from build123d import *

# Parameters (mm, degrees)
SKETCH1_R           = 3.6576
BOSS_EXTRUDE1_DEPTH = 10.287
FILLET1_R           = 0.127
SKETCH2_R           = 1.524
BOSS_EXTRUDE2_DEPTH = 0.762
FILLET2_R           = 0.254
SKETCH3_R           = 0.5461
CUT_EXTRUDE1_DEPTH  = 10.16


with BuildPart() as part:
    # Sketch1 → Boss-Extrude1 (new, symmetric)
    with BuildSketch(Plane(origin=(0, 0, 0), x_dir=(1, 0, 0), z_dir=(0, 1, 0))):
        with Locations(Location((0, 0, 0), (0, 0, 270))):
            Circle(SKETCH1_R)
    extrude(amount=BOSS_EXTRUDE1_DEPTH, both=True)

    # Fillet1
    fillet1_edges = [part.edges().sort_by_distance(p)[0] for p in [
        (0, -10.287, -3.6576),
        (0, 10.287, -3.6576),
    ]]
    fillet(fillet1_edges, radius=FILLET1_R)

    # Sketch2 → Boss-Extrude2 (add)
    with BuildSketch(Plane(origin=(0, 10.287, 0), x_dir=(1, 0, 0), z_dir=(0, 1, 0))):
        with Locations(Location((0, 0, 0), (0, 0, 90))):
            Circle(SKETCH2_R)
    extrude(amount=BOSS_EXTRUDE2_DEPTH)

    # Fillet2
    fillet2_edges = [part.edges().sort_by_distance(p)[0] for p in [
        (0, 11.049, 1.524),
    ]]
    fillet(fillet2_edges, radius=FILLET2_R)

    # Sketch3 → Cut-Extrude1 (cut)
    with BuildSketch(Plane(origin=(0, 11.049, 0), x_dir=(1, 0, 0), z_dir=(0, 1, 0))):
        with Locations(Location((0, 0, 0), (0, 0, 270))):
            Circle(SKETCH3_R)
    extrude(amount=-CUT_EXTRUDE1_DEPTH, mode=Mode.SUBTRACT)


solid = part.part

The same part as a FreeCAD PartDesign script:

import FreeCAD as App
import Part
import Sketcher

V = App.Vector
Q = App.Units.Quantity


def edges_at(feature, points):
    """Names of the edges that pass closest to the given points."""
    edges = feature.Shape.Edges
    near = lambda p: min(range(len(edges)), key=lambda i: edges[i].distToShape(Part.Vertex(*p))[0])
    return sorted({f"Edge{near(p) + 1}" for p in points})

doc = App.newDocument("Part")
params = doc.addObject("Spreadsheet::Sheet", "Params")
for row, (alias, value) in enumerate([
    ("sketch1_diameter", "0.288 in"),
    ("pad1_length", "0.81 in"),
    ("fillet_radius", "0.005 in"),
    ("sketch2_diameter", "0.12 in"),
    ("pad2_length", "0.03 in"),
    ("fillet2_radius", "0.01 in"),
    ("sketch3_diameter", "0.043 in"),
    ("pocket1_length", "0.4 in"),
], start=1):
    params.set(f"A{row}", alias)
    params.set(f"B{row}", "=" + value)
    params.setAlias(f"B{row}", alias)

body = doc.addObject("PartDesign::Body", "Body")

# Sketch on XZ plane
sketch1 = body.newObject("Sketcher::SketchObject", "Sketch")
sketch1.AttachmentSupport = (doc.getObject("XZ_Plane"), [""])
sketch1.MapMode = "FlatFace"
sketch1.addGeometry(Part.Circle(V(0, 0, 0), V(0, 0, 1), 3.7), False)
sketch1.addConstraint(Sketcher.Constraint("Coincident", 0, 3, -1, 1))
sketch1.addConstraint(Sketcher.Constraint("Diameter", 0, Q("0.288 in")))
sketch1.setExpression("Constraints[1]", "Params.sketch1_diameter")
pad1 = body.newObject("PartDesign::Pad", "Pad")
pad1.Profile = sketch1
pad1.setExpression("Length", "Params.pad1_length")
pad1.Midplane = True
doc.recompute()

fillet = body.newObject("PartDesign::Fillet", "Fillet")
fillet.Base = (pad1, edges_at(pad1, [(0, -10.287, -3.658), (0, 10.287, -3.658)]))
fillet.setExpression("Radius", "Params.fillet_radius")

# Sketch on XZ plane
sketch2 = body.newObject("Sketcher::SketchObject", "Sketch001")
sketch2.AttachmentSupport = (doc.getObject("XZ_Plane"), [""])
sketch2.MapMode = "FlatFace"
sketch2.AttachmentOffset = App.Placement(V(0, 0, -0.405 * 25.4), App.Rotation())
sketch2.addGeometry(Part.Circle(V(0, 0, 0), V(0, 0, 1), 1.5), False)
sketch2.addConstraint(Sketcher.Constraint("Coincident", 0, 3, -1, 1))
sketch2.addConstraint(Sketcher.Constraint("Diameter", 0, Q("0.12 in")))
sketch2.setExpression("Constraints[1]", "Params.sketch2_diameter")
pad2 = body.newObject("PartDesign::Pad", "Pad001")
pad2.Profile = sketch2
pad2.setExpression("Length", "Params.pad2_length")
pad2.Reversed = True
doc.recompute()

fillet2 = body.newObject("PartDesign::Fillet", "Fillet001")
fillet2.Base = (pad2, edges_at(pad2, [(0, 11.049, 1.524)]))
fillet2.setExpression("Radius", "Params.fillet2_radius")

# Sketch on XZ plane
sketch3 = body.newObject("Sketcher::SketchObject", "Sketch002")
sketch3.AttachmentSupport = (doc.getObject("XZ_Plane"), [""])
sketch3.MapMode = "FlatFace"
sketch3.AttachmentOffset = App.Placement(V(0, 0, -0.435 * 25.4), App.Rotation())
sketch3.addGeometry(Part.Circle(V(0, 0, 0), V(0, 0, 1), 0.5), False)
sketch3.addConstraint(Sketcher.Constraint("Coincident", 0, 3, -1, 1))
sketch3.addConstraint(Sketcher.Constraint("Diameter", 0, Q("0.043 in")))
sketch3.setExpression("Constraints[1]", "Params.sketch3_diameter")
pocket1 = body.newObject("PartDesign::Pocket", "Pocket")
pocket1.Profile = sketch3
pocket1.setExpression("Length", "Params.pocket1_length")
pocket1.Reversed = True

doc.recompute()
